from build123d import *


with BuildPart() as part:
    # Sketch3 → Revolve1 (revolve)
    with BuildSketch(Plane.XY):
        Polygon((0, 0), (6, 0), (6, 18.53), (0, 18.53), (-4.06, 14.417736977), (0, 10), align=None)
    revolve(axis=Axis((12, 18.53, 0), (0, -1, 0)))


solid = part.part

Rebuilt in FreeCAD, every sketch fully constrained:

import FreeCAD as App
import Part
import Sketcher
Q = App.Units.Quantity


def add_polygon(sketch, points):
    """Adds a closed chain of lines whose ends are joined by coincident constraints."""
    first, n = sketch.GeometryCount, len(points)
    for a, b in zip(points, points[1:] + points[:1]):
        sketch.addGeometry(Part.LineSegment(App.Vector(*a, 0), App.Vector(*b, 0)), False)
    for i in range(n):
        sketch.addConstraint(Sketcher.Constraint("Coincident", first + i, 2, first + (i + 1) % n, 1))

doc = App.newDocument("Part")
params = doc.addObject("Spreadsheet::Sheet", "Params")
for row, (alias, value) in enumerate([
    ("sketch1_width", "6 mm"),
    ("sketch1_height", "10 mm"),
    ("sketch1_length", "6 mm"),
    ("sketch1_height2", "18.53 mm"),
    ("revolution_angle", "360 deg"),
], start=1):
    params.set(f"A{row}", alias)
    params.set(f"B{row}", "=" + value)
    params.setAlias(f"B{row}", alias)

body = doc.addObject("PartDesign::Body", "Body")

sketch1 = body.newObject("Sketcher::SketchObject", "Sketch")
sketch1.AttachmentSupport = (doc.getObject("XY_Plane"), [""])
sketch1.MapMode = "FlatFace"
add_polygon(sketch1, [(0, 0), (6, 0), (6, 18.53), (0, 18.53), (-4.06, 14.417737), (0, 10)])
sketch1.addGeometry(Part.LineSegment(App.Vector(12, 18.53, 0), App.Vector(12, 0, 0)), True)
sketch1.addConstraint(Sketcher.Constraint("Horizontal", 0))
sketch1.addConstraint(Sketcher.Constraint("Vertical", 1))
sketch1.addConstraint(Sketcher.Constraint("Horizontal", 2))
sketch1.addConstraint(Sketcher.Constraint("Vertical", 5))
sketch1.addConstraint(Sketcher.Constraint("Vertical", 6))
sketch1.addConstraint(Sketcher.Constraint("Coincident", 5, 2, -1, 1))
sketch1.addConstraint(Sketcher.Constraint("PointOnObject", 2, 2, -2))
sketch1.addConstraint(Sketcher.Constraint("PointOnObject", 6, 2, -1))
sketch1.addConstraint(Sketcher.Constraint("Horizontal", 2, 2, 6, 1))
sketch1.addConstraint(Sketcher.Constraint("DistanceX", 0, 1, 0, 2, Q("6 mm")))
sketch1.addConstraint(Sketcher.Constraint("DistanceY", 5, 2, 5, 1, Q("10 mm")))
sketch1.addConstraint(Sketcher.Constraint("Distance", 4, Q("6 mm")))
sketch1.addConstraint(Sketcher.Constraint("DistanceX", -1, 1, 6, 1, Q("12 mm")))
sketch1.addConstraint(Sketcher.Constraint("DistanceY", 1, 1, 1, 2, Q("18.53 mm")))
sketch1.addConstraint(Sketcher.Constraint("DistanceX", 3, 2, -1, 1, Q("4.06 mm")))
sketch1.setExpression("Constraints[15]", "Params.sketch1_width")
sketch1.setExpression("Constraints[16]", "Params.sketch1_height")
sketch1.setExpression("Constraints[17]", "Params.sketch1_length")
sketch1.setExpression("Constraints[19]", "Params.sketch1_height2")
revolution = body.newObject("PartDesign::Revolution", "Revolution")
revolution.Profile = sketch1
revolution.ReferenceAxis = (sketch1, ["Axis0"])
revolution.setExpression("Angle", "Params.revolution_angle")

doc.recompute()
